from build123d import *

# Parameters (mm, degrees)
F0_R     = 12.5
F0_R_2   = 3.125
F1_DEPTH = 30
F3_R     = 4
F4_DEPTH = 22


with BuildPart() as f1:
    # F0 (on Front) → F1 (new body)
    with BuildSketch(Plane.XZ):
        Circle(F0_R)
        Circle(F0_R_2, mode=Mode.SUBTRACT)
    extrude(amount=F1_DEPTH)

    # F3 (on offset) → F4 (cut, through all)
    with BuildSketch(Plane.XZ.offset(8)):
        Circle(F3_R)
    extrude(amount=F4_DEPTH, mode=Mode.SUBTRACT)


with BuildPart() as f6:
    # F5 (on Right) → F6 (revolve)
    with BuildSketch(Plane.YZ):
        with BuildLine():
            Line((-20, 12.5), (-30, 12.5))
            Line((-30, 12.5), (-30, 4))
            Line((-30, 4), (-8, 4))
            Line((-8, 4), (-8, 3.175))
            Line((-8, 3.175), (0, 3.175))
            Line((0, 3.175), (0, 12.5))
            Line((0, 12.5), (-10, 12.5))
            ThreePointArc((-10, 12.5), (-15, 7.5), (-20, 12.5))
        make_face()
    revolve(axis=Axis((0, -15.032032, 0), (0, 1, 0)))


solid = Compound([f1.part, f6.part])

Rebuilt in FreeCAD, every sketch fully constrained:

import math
import FreeCAD as App
import Part
import Sketcher
from FreeCAD import Vector
Q = App.Units.Quantity

doc = App.newDocument("Part")
body = doc.addObject("PartDesign::Body", "Body")

# Sketch on XZ plane
sketch1 = body.newObject("Sketcher::SketchObject", "Sketch")
sketch1.AttachmentSupport = (doc.getObject("XZ_Plane"), [""])
sketch1.MapMode = "FlatFace"
sketch1.addGeometry([
    Part.Circle(Vector(0, 0, 0), Vector(0, 0, 1), 12.5),
    Part.Circle(Vector(0, 0, 0), Vector(0, 0, 1), 3.1),
], False)
sketch1.addConstraint([
    Sketcher.Constraint("Coincident", 0, 3, -1, 1),
    Sketcher.Constraint("Coincident", 1, 3, -1, 1),
    Sketcher.Constraint("Diameter", 0, Q("25 mm")),
    Sketcher.Constraint("Diameter", 1, Q("6.25 mm")),
])
pad1 = body.newObject("PartDesign::Pad", "Pad")
pad1.Profile = sketch1
pad1.Length = 30

# Sketch on XZ plane
sketch2 = body.newObject("Sketcher::SketchObject", "Sketch001")
sketch2.AttachmentSupport = (doc.getObject("XZ_Plane"), [""])
sketch2.MapMode = "FlatFace"
sketch2.AttachmentOffset = App.Placement(Vector(0, 0, 8), App.Rotation())
sketch2.addGeometry(Part.Circle(Vector(0, 0, 0), Vector(0, 0, 1), 4), False)
sketch2.addConstraint([
    Sketcher.Constraint("Coincident", 0, 3, -1, 1),
    Sketcher.Constraint("Diameter", 0, Q("8 mm")),
])
pocket1 = body.newObject("PartDesign::Pocket", "Pocket")
pocket1.Profile = sketch2
pocket1.Type = "ThroughAll"
pocket1.Reversed = True
body2 = doc.addObject("PartDesign::Body", "Body001")

# Sketch on YZ plane
sketch3 = body2.newObject("Sketcher::SketchObject", "Sketch002")
sketch3.AttachmentSupport = (doc.getObject("YZ_Plane001"), [""])
sketch3.MapMode = "FlatFace"
sketch3.addGeometry([
    Part.LineSegment(Vector(-20, 12.5, 0), Vector(-30, 12.5, 0)),  # 0
    Part.LineSegment(Vector(-30, 12.5, 0), Vector(-30, 4, 0)),  # 1
    Part.LineSegment(Vector(-30, 4, 0), Vector(-8, 4, 0)),  # 2
    Part.LineSegment(Vector(-8, 4, 0), Vector(-8, 3.2, 0)),  # 3
    Part.LineSegment(Vector(-8, 3.2, 0), Vector(0, 3.2, 0)),  # 4
    Part.LineSegment(Vector(0, 3.2, 0), Vector(0, 12.5, 0)),  # 5
    Part.LineSegment(Vector(0, 12.5, 0), Vector(-10, 12.5, 0)),  # 6
    Part.ArcOfCircle(Part.Circle(Vector(-15, 12.5, 0), Vector(0, 0, 1), 5), math.radians(180), math.radians(360)),  # 7
], False)
sketch3.addConstraint([
    Sketcher.Constraint("Coincident", 0, 2, 1, 1),
    Sketcher.Constraint("Coincident", 1, 2, 2, 1),
    Sketcher.Constraint("Coincident", 2, 2, 3, 1),
    Sketcher.Constraint("Coincident", 3, 2, 4, 1),
    Sketcher.Constraint("Coincident", 4, 2, 5, 1),
    Sketcher.Constraint("Coincident", 5, 2, 6, 1),
    Sketcher.Constraint("Coincident", 6, 2, 7, 2),
    Sketcher.Constraint("Coincident", 7, 1, 0, 1),
    Sketcher.Constraint("Horizontal", 0),
    Sketcher.Constraint("Vertical", 1),
    Sketcher.Constraint("Horizontal", 2),
    Sketcher.Constraint("Vertical", 3),
    Sketcher.Constraint("Horizontal", 4),
    Sketcher.Constraint("Vertical", 5),
    Sketcher.Constraint("Horizontal", 6),
    Sketcher.Constraint("PointOnObject", 4, 2, -2),
    Sketcher.Constraint("Horizontal", 7, 3, 0, 2),
    Sketcher.Constraint("Horizontal", 0, 2, 5, 2),
    Sketcher.Constraint("Equal", 0, 6),
    Sketcher.Constraint("Radius", 7, Q("5 mm")),
    Sketcher.Constraint("DistanceX", 0, 2, 0, 1, Q("10 mm")),
    Sketcher.Constraint("DistanceX", 2, 1, 2, 2, Q("22 mm")),
    Sketcher.Constraint("DistanceY", 1, 2, 1, 1, Q("8.5 mm")),
    Sketcher.Constraint("DistanceY", -1, 1, 1, 2, Q("4 mm")),
    Sketcher.Constraint("DistanceY", 3, 2, 3, 1, Q("0.825 mm")),
])
revolution = body2.newObject("PartDesign::Revolution", "Revolution")
revolution.Profile = sketch3
revolution.ReferenceAxis = (sketch3, ["H_Axis"])
revolution.Angle = 360

doc.recompute()
